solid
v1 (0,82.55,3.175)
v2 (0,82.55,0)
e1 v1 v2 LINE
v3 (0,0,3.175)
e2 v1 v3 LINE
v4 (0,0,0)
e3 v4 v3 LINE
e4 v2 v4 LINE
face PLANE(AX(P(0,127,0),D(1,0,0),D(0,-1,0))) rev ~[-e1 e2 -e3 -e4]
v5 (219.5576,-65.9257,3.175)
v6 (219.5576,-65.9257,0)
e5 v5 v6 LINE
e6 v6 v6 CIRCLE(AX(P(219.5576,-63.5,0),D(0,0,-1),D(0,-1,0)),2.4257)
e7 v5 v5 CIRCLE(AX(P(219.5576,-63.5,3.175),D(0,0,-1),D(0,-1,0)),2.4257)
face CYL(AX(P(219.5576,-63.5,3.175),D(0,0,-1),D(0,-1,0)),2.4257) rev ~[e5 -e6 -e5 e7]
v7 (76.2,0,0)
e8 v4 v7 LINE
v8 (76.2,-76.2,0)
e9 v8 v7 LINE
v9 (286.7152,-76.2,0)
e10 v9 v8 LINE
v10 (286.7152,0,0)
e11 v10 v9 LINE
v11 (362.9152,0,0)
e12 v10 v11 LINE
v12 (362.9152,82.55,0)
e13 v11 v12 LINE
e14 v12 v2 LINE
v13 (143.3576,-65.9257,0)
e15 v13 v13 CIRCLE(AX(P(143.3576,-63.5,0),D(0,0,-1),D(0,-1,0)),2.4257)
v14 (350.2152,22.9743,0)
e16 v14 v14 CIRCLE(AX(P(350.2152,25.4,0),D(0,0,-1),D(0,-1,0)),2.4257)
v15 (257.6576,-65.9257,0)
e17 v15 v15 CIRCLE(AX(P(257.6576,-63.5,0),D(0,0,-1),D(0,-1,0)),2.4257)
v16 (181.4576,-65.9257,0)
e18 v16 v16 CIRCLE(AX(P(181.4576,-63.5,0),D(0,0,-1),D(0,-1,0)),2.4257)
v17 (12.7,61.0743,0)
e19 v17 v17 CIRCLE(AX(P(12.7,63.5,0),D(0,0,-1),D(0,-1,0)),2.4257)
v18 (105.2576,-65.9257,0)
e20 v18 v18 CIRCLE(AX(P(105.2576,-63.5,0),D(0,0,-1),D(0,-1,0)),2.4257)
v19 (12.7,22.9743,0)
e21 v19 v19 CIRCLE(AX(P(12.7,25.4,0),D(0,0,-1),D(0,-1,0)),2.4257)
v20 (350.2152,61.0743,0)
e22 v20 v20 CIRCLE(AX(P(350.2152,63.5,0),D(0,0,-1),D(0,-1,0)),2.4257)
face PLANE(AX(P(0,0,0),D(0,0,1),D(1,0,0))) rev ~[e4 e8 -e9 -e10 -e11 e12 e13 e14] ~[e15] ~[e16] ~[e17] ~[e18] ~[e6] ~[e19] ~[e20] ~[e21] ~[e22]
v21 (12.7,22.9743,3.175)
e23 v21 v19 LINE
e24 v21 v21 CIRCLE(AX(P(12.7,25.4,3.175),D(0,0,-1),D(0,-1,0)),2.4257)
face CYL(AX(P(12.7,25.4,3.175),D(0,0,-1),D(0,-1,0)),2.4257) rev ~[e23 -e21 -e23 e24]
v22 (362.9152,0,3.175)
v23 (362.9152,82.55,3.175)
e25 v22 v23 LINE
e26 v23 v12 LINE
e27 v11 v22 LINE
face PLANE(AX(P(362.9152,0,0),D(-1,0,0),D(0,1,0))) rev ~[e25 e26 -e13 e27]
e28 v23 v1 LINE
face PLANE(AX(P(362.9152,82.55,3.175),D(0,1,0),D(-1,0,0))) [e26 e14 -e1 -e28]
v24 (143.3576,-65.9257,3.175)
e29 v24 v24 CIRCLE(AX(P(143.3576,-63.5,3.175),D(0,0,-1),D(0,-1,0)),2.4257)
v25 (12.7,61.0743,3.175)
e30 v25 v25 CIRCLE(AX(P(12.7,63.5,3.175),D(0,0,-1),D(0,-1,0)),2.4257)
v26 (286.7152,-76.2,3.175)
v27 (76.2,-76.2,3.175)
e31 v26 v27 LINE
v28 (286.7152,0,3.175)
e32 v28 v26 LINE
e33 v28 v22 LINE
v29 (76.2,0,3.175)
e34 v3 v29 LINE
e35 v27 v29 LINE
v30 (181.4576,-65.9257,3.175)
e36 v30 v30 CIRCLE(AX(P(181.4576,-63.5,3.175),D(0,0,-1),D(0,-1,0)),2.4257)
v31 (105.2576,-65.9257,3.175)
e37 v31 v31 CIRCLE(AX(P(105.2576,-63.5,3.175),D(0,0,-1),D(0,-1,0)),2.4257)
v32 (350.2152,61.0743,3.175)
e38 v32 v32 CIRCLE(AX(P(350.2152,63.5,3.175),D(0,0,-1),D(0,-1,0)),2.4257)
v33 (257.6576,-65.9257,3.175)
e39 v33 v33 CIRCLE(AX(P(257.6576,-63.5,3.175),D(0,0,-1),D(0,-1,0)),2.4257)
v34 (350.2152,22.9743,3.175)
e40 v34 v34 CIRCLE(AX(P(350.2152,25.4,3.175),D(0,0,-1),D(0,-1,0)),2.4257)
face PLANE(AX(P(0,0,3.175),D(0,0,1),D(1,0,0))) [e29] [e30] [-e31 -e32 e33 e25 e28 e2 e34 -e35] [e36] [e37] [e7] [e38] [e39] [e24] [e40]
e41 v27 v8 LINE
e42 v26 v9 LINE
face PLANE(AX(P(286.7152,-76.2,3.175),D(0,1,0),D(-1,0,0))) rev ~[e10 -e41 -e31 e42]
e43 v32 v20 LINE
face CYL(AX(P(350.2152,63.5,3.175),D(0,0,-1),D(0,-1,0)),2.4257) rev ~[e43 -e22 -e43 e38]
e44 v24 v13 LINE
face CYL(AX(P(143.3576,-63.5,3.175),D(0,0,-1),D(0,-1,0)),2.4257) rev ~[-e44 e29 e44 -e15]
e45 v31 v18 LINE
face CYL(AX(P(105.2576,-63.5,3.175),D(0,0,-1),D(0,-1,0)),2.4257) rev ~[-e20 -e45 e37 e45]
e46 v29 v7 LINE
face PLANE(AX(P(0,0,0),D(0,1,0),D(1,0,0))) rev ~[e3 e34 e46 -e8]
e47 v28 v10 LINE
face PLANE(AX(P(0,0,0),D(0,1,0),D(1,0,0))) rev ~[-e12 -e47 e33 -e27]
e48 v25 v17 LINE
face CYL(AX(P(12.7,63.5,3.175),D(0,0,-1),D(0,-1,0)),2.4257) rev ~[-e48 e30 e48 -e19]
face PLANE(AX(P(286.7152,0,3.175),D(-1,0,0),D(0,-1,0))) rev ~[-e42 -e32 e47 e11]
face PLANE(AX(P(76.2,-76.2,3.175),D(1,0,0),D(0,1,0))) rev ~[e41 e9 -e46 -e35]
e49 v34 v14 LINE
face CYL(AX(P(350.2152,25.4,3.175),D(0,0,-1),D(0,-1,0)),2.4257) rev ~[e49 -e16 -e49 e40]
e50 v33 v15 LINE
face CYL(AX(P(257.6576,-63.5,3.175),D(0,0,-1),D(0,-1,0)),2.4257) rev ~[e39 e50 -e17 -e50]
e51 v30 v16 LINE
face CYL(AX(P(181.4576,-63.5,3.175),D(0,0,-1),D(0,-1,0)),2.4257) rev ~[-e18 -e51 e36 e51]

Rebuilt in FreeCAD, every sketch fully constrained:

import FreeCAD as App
import Part
import Sketcher
from FreeCAD import Vector
Q = App.Units.Quantity

doc = App.newDocument("Part")
body = doc.addObject("PartDesign::Body", "Body")

sketch1 = doc.addObject("Sketcher::SketchObject", "Sketch")
body.addObject(sketch1)
sketch1.AttachmentSupport = (doc.XY_Plane, [""])
sketch1.MapMode = "FlatFace"
sketch1.addGeometry(Part.LineSegment(Vector(0, 127, 0), Vector(0, 0, 0)), False)
sketch1.addGeometry(Part.LineSegment(Vector(0, 0, 0), Vector(363, 0, 0)), False)
sketch1.addGeometry(Part.LineSegment(Vector(363, 0, 0), Vector(363, 127, 0)), False)
sketch1.addGeometry(Part.LineSegment(Vector(363, 127, 0), Vector(0, 127, 0)), False)
sketch1.addConstraint(Sketcher.Constraint("Coincident", 0, 2, 1, 1))
sketch1.addConstraint(Sketcher.Constraint("Coincident", 1, 2, 2, 1))
sketch1.addConstraint(Sketcher.Constraint("Coincident", 2, 2, 3, 1))
sketch1.addConstraint(Sketcher.Constraint("Coincident", 3, 2, 0, 1))
sketch1.addConstraint(Sketcher.Constraint("Vertical", 0))
sketch1.addConstraint(Sketcher.Constraint("Horizontal", 1))
sketch1.addConstraint(Sketcher.Constraint("Vertical", 2))
sketch1.addConstraint(Sketcher.Constraint("Horizontal", 3))
sketch1.addConstraint(Sketcher.Constraint("Coincident", 0, 2, -1, 1))
sketch1.addConstraint(Sketcher.Constraint("DistanceY", 0, 2, 0, 1, Q("5 in")))
sketch1.addConstraint(Sketcher.Constraint("DistanceX", 1, 1, 1, 2, Q("14.288 in")))
pad1 = doc.addObject("PartDesign::Pad", "Pad")
body.addObject(pad1)
pad1.Profile = sketch1
pad1.Length = Q("0.125 in")

sketch2 = doc.addObject("Sketcher::SketchObject", "Sketch001")
body.addObject(sketch2)
sketch2.AttachmentSupport = (doc.XY_Plane, [""])
sketch2.MapMode = "FlatFace"
sketch2.AttachmentOffset = App.Placement(Vector(0, 0, 0.125 * 25.4), App.Rotation())
sketch2.addGeometry(Part.Circle(Vector(12.7, 25.4, 0), Vector(0, 0, 1), 2.4), False)
sketch2.addGeometry(Part.Circle(Vector(12.7, 63.5, 0), Vector(0, 0, 1), 2.4), False)
sketch2.addGeometry(Part.Circle(Vector(350.2, 25.4, 0), Vector(0, 0, 1), 2.4), False)
sketch2.addGeometry(Part.Circle(Vector(350.2, 63.5, 0), Vector(0, 0, 1), 2.4), False)
sketch2.addGeometry(Part.Circle(Vector(12.7, 101.6, 0), Vector(0, 0, 1), 2.4), False)
sketch2.addGeometry(Part.Circle(Vector(350.2, 101.6, 0), Vector(0, 0, 1), 2.4), False)
sketch2.addConstraint(Sketcher.Constraint("Equal", 0, 1))
sketch2.addConstraint(Sketcher.Constraint("Equal", 1, 2))
sketch2.addConstraint(Sketcher.Constraint("Equal", 2, 3))
sketch2.addConstraint(Sketcher.Constraint("Equal", 3, 4))
sketch2.addConstraint(Sketcher.Constraint("Equal", 4, 5))
sketch2.addConstraint(Sketcher.Constraint("Horizontal", 0, 3, 2, 3))
sketch2.addConstraint(Sketcher.Constraint("Horizontal", 1, 3, 3, 3))
sketch2.addConstraint(Sketcher.Constraint("Horizontal", 4, 3, 5, 3))
sketch2.addConstraint(Sketcher.Constraint("Vertical", 0, 3, 1, 3))
sketch2.addConstraint(Sketcher.Constraint("Vertical", 2, 3, 3, 3))
sketch2.addConstraint(Sketcher.Constraint("Vertical", 1, 3, 4, 3))
sketch2.addConstraint(Sketcher.Constraint("Vertical", 3, 3, 5, 3))
sketch2.addConstraint(Sketcher.Constraint("Diameter", 0, Q("0.191 in")))
sketch2.addConstraint(Sketcher.Constraint("DistanceY", -1, 1, 0, 3, Q("1 in")))
sketch2.addConstraint(Sketcher.Constraint("DistanceY", -1, 1, 4, 3, Q("4 in")))
sketch2.addConstraint(Sketcher.Constraint("DistanceX", -1, 1, 0, 3, Q("0.5 in")))
sketch2.addConstraint(Sketcher.Constraint("DistanceY", -1, 1, 1, 3, Q("2.5 in")))
sketch2.addConstraint(Sketcher.Constraint("DistanceX", -1, 1, 2, 3, Q("13.788 in")))
doc.recompute()
hole = doc.addObject("PartDesign::Hole", "Hole")
body.addObject(hole)
hole.Profile = sketch2
hole.ThreadType = "None"
hole.Diameter = Q("0.191 in")
hole.DepthType = "ThroughAll"

sketch3 = doc.addObject("Sketcher::SketchObject", "Sketch002")
body.addObject(sketch3)
sketch3.AttachmentSupport = (doc.XY_Plane, [""])
sketch3.MapMode = "FlatFace"
sketch3.AttachmentOffset = App.Placement(Vector(0, 0, 0.125 * 25.4), App.Rotation())
sketch3.addGeometry(Part.LineSegment(Vector(363, 127, 0), Vector(0, 127, 0)), False)
sketch3.addGeometry(Part.LineSegment(Vector(0, 127, 0), Vector(0, 83, 0)), False)
sketch3.addGeometry(Part.LineSegment(Vector(0, 83, 0), Vector(363, 83, 0)), False)
sketch3.addGeometry(Part.LineSegment(Vector(363, 83, 0), Vector(363, 127, 0)), False)
sketch3.addConstraint(Sketcher.Constraint("Coincident", 0, 2, 1, 1))
sketch3.addConstraint(Sketcher.Constraint("Coincident", 1, 2, 2, 1))
sketch3.addConstraint(Sketcher.Constraint("Coincident", 2, 2, 3, 1))
sketch3.addConstraint(Sketcher.Constraint("Coincident", 3, 2, 0, 1))
sketch3.addConstraint(Sketcher.Constraint("Horizontal", 0))
sketch3.addConstraint(Sketcher.Constraint("Vertical", 1))
sketch3.addConstraint(Sketcher.Constraint("Horizontal", 2))
sketch3.addConstraint(Sketcher.Constraint("Vertical", 3))
sketch3.addConstraint(Sketcher.Constraint("PointOnObject", 0, 2, -2))
sketch3.addConstraint(Sketcher.Constraint("DistanceY", 1, 2, 1, 1, Q("1.75 in")))
sketch3.addConstraint(Sketcher.Constraint("DistanceY", -1, 1, 0, 2, Q("5 in")))
sketch3.addConstraint(Sketcher.Constraint("DistanceX", 0, 2, 0, 1, Q("14.288 in")))
pocket1 = doc.addObject("PartDesign::Pocket", "Pocket")
body.addObject(pocket1)
pocket1.Profile = sketch3
pocket1.Length = Q("1 in")

sketch4 = doc.addObject("Sketcher::SketchObject", "Sketch003")
body.addObject(sketch4)
sketch4.AttachmentSupport = (doc.XY_Plane, [""])
sketch4.MapMode = "FlatFace"
sketch4.AttachmentOffset = App.Placement(Vector(0, 0, 0.125 * 25.4), App.Rotation())
sketch4.addGeometry(Part.LineSegment(Vector(287, 0, 0), Vector(76, 0, 0)), False)
sketch4.addGeometry(Part.LineSegment(Vector(76, 0, 0), Vector(76, -76, 0)), False)
sketch4.addGeometry(Part.LineSegment(Vector(76, -76, 0), Vector(287, -76, 0)), False)
sketch4.addGeometry(Part.LineSegment(Vector(287, -76, 0), Vector(287, 0, 0)), False)
sketch4.addConstraint(Sketcher.Constraint("Coincident", 0, 2, 1, 1))
sketch4.addConstraint(Sketcher.Constraint("Coincident", 1, 2, 2, 1))
sketch4.addConstraint(Sketcher.Constraint("Coincident", 2, 2, 3, 1))
sketch4.addConstraint(Sketcher.Constraint("Coincident", 3, 2, 0, 1))
sketch4.addConstraint(Sketcher.Constraint("Horizontal", 0))
sketch4.addConstraint(Sketcher.Constraint("Vertical", 1))
sketch4.addConstraint(Sketcher.Constraint("Horizontal", 2))
sketch4.addConstraint(Sketcher.Constraint("Vertical", 3))
sketch4.addConstraint(Sketcher.Constraint("PointOnObject", 0, 2, -1))
sketch4.addConstraint(Sketcher.Constraint("DistanceY", 1, 2, 1, 1, Q("3 in")))
sketch4.addConstraint(Sketcher.Constraint("DistanceX", -1, 1, 0, 2, Q("3 in")))
sketch4.addConstraint(Sketcher.Constraint("DistanceX", 0, 2, 0, 1, Q("8.288 in")))
pad2 = doc.addObject("PartDesign::Pad", "Pad001")
body.addObject(pad2)
pad2.Profile = sketch4
pad2.Length = Q("0.125 in")
pad2.Reversed = True

sketch5 = doc.addObject("Sketcher::SketchObject", "Sketch004")
body.addObject(sketch5)
sketch5.AttachmentSupport = (doc.XY_Plane, [""])
sketch5.MapMode = "FlatFace"
sketch5.AttachmentOffset = App.Placement(Vector(0, 0, 0.125 * 25.4), App.Rotation())
sketch5.addGeometry(Part.Circle(Vector(105.3, -63.5, 0), Vector(0, 0, 1), 2.4), False)
sketch5.addGeometry(Part.Circle(Vector(143.4, -63.5, 0), Vector(0, 0, 1), 2.4), False)
sketch5.addGeometry(Part.Circle(Vector(181.5, -63.5, 0), Vector(0, 0, 1), 2.4), False)
sketch5.addGeometry(Part.Circle(Vector(219.6, -63.5, 0), Vector(0, 0, 1), 2.4), False)
sketch5.addGeometry(Part.Circle(Vector(257.7, -63.5, 0), Vector(0, 0, 1), 2.4), False)
sketch5.addConstraint(Sketcher.Constraint("Equal", 0, 1))
sketch5.addConstraint(Sketcher.Constraint("Equal", 1, 2))
sketch5.addConstraint(Sketcher.Constraint("Equal", 2, 3))
sketch5.addConstraint(Sketcher.Constraint("Equal", 3, 4))
sketch5.addConstraint(Sketcher.Constraint("Horizontal", 0, 3, 1, 3))
sketch5.addConstraint(Sketcher.Constraint("Horizontal", 1, 3, 2, 3))
sketch5.addConstraint(Sketcher.Constraint("Horizontal", 2, 3, 3, 3))
sketch5.addConstraint(Sketcher.Constraint("Horizontal", 3, 3, 4, 3))
sketch5.addConstraint(Sketcher.Constraint("Diameter", 0, Q("0.191 in")))
sketch5.addConstraint(Sketcher.Constraint("DistanceX", 0, 3, 2, 3, Q("3 in")))
sketch5.addConstraint(Sketcher.Constraint("DistanceX", 1, 3, 3, 3, Q("3 in")))
sketch5.addConstraint(Sketcher.Constraint("DistanceX", 2, 3, 4, 3, Q("3 in")))
sketch5.addConstraint(Sketcher.Constraint("DistanceY", 0, 3, -1, 1, Q("2.5 in")))
sketch5.addConstraint(Sketcher.Constraint("DistanceX", 0, 3, 1, 3, Q("1.5 in")))
sketch5.addConstraint(Sketcher.Constraint("DistanceX", -1, 1, 0, 3, Q("4.144 in")))
doc.recompute()
hole2 = doc.addObject("PartDesign::Hole", "Hole001")
body.addObject(hole2)
hole2.Profile = sketch5
hole2.ThreadType = "None"
hole2.Diameter = Q("0.191 in")
hole2.DepthType = "ThroughAll"

doc.recompute()
